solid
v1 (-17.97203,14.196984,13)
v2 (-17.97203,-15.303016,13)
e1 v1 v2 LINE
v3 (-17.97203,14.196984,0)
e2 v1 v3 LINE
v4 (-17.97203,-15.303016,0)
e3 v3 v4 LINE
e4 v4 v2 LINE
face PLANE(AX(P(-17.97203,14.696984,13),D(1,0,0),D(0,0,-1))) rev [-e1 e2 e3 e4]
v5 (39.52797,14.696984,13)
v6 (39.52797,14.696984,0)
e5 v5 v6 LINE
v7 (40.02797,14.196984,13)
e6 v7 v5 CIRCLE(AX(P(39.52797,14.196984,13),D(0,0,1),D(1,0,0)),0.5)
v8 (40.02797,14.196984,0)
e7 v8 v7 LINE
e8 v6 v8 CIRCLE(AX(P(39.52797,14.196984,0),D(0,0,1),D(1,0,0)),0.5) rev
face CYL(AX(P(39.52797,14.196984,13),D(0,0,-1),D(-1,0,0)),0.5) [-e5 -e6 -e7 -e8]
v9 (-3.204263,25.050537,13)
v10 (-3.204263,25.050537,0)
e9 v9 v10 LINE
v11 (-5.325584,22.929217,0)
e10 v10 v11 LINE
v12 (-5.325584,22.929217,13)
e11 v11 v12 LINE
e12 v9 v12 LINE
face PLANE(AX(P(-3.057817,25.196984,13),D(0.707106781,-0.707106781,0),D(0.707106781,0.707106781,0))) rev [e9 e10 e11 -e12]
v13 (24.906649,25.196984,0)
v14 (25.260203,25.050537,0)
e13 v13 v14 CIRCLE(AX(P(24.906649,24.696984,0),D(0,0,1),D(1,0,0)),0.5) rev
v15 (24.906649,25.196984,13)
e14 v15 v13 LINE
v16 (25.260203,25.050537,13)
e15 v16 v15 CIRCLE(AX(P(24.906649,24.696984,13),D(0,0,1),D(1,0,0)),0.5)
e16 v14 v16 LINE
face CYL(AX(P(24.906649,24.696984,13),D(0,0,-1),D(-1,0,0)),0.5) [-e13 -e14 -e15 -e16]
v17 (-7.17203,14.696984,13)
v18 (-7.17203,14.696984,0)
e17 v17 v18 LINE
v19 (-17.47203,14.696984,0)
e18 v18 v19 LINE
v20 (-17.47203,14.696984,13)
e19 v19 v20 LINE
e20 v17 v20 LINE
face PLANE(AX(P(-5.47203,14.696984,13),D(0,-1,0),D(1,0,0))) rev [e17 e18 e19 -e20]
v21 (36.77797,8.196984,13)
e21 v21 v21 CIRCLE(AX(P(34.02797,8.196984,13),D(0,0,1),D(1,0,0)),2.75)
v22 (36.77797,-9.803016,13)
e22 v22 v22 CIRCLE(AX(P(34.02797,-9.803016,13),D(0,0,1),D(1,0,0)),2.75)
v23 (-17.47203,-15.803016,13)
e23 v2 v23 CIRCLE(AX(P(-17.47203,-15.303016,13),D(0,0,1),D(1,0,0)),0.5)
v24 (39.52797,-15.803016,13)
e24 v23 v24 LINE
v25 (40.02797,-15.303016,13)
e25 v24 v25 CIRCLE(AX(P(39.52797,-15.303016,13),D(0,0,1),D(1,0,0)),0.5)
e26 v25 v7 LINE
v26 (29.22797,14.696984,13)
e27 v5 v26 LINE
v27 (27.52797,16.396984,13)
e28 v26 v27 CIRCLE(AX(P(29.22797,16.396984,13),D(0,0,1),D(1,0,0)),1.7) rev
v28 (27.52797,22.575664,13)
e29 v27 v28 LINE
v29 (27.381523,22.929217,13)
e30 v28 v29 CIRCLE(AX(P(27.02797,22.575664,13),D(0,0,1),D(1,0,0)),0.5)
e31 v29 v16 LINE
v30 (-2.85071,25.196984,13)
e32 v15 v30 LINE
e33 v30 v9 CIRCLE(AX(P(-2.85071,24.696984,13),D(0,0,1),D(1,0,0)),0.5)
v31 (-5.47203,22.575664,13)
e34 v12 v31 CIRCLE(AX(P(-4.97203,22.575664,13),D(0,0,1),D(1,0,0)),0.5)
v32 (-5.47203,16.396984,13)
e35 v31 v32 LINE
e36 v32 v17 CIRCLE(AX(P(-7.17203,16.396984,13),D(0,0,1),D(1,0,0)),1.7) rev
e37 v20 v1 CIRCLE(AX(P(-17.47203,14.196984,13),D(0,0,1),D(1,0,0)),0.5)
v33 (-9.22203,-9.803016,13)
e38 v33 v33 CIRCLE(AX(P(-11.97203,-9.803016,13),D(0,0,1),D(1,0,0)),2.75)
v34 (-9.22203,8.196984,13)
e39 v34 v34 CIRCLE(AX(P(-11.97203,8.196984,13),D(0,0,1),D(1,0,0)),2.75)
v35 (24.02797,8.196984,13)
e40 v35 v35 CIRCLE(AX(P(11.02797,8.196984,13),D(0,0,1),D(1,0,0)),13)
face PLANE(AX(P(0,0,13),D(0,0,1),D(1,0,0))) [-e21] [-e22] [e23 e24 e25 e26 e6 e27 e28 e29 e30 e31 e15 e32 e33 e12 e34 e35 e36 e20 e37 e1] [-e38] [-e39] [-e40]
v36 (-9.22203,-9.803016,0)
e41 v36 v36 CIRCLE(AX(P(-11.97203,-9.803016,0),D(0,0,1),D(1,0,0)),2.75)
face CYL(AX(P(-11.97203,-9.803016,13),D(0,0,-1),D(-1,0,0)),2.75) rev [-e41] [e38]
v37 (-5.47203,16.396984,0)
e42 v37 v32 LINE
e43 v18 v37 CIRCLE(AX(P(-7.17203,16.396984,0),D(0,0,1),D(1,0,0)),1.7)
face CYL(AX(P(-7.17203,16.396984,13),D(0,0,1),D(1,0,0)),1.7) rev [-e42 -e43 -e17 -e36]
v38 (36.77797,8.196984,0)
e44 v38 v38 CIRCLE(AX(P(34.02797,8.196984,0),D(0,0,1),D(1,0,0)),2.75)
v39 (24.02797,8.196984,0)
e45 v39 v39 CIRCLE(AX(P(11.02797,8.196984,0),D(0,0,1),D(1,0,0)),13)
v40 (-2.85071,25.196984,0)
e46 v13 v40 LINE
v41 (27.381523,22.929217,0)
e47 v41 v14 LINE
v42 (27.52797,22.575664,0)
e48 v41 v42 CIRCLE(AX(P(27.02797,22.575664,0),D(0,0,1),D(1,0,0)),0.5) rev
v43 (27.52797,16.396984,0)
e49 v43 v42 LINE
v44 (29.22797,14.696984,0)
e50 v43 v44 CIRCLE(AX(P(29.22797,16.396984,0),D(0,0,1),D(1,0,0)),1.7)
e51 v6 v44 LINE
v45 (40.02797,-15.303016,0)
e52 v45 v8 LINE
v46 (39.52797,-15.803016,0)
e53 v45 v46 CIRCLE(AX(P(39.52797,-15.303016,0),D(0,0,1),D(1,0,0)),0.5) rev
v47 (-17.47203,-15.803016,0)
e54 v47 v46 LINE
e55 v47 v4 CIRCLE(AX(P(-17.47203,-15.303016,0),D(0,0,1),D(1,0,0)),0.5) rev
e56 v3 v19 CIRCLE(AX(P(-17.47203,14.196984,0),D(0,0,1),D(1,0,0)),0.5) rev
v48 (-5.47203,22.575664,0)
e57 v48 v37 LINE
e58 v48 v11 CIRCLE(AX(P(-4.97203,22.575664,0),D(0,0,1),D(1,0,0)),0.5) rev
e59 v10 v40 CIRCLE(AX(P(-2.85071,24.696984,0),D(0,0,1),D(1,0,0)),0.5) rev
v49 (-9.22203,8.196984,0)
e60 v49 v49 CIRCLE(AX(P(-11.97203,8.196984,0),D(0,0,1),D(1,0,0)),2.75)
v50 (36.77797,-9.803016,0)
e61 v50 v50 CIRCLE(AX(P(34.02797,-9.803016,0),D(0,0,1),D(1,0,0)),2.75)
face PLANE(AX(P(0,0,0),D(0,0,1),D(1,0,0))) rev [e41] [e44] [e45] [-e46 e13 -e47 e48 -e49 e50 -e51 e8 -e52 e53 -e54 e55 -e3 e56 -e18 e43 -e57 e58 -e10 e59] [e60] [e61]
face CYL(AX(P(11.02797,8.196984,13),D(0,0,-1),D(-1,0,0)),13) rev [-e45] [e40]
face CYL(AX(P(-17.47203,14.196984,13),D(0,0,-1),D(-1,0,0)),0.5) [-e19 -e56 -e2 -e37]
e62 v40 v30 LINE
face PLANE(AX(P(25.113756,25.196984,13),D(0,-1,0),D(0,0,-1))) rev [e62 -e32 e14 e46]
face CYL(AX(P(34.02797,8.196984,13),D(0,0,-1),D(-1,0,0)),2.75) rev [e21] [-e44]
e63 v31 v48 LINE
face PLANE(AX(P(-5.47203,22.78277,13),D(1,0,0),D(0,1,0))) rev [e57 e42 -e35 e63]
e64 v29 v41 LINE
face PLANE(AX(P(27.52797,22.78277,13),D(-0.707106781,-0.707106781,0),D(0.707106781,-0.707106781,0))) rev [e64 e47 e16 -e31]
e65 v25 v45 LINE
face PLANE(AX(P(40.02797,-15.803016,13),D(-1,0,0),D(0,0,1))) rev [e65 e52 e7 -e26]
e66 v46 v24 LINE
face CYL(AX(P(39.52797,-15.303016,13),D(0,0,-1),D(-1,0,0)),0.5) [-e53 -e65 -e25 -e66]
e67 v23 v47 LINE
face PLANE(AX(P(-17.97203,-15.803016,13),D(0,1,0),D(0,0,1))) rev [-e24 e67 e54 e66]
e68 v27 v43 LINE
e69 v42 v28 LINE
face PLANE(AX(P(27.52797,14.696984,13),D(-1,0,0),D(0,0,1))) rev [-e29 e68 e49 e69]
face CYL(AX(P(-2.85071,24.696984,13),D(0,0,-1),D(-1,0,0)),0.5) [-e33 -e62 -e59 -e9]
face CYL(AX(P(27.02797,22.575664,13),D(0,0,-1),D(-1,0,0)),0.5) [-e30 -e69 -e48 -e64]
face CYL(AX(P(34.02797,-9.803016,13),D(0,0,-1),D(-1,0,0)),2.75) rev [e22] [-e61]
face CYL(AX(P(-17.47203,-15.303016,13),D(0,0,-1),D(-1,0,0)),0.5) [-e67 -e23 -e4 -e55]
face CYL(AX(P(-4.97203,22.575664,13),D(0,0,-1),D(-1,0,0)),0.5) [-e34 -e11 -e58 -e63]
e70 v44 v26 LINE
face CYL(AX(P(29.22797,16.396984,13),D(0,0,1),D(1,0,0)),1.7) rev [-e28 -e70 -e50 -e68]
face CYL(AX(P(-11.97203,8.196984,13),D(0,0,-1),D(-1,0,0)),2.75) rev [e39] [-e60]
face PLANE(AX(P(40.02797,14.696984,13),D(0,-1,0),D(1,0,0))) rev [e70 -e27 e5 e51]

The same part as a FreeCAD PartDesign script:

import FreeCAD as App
import Part
import Sketcher

V = App.Vector
Q = App.Units.Quantity


def edges_at(feature, points):
    """Names of the edges that pass closest to the given points."""
    edges = feature.Shape.Edges
    near = lambda p: min(range(len(edges)), key=lambda i: edges[i].distToShape(Part.Vertex(*p))[0])
    return sorted({f"Edge{near(p) + 1}" for p in points})


def add_polygon(sketch, points):
    """Adds a closed chain of lines whose ends are joined by coincident constraints."""
    first, n = sketch.GeometryCount, len(points)
    for a, b in zip(points, points[1:] + points[:1]):
        sketch.addGeometry(Part.LineSegment(App.Vector(*a, 0), App.Vector(*b, 0)), False)
    for i in range(n):
        sketch.addConstraint(Sketcher.Constraint("Coincident", first + i, 2, first + (i + 1) % n, 1))

doc = App.newDocument("Part")
body = doc.addObject("PartDesign::Body", "Body")

# Sketch on XY plane
sketch1 = doc.addObject("Sketcher::SketchObject", "Sketch")
body.addObject(sketch1)
sketch1.AttachmentSupport = (doc.XY_Plane, [""])
sketch1.MapMode = "FlatFace"
add_polygon(sketch1, [(40, 14.7), (27.5, 14.7), (27.5, 22.8), (25.1, 25.2), (-3.1, 25.2), (-5.5, 22.8), (-5.5, 14.7), (-18, 14.7), (-18, -15.8), (40, -15.8)])  # lines 0-9
sketch1.addGeometry(Part.Circle(V(-12, -9.8, 0), V(0, 0, 1), 2.8), False)  # 10
sketch1.addGeometry(Part.Circle(V(34, -9.8, 0), V(0, 0, 1), 2.8), False)  # 11
sketch1.addGeometry(Part.Circle(V(-12, 8.2, 0), V(0, 0, 1), 2.8), False)  # 12
sketch1.addGeometry(Part.Circle(V(11, 8.2, 0), V(0, 0, 1), 13), False)  # 13
sketch1.addGeometry(Part.Circle(V(34, 8.2, 0), V(0, 0, 1), 2.8), False)  # 14
sketch1.addConstraint([
    Sketcher.Constraint("Horizontal", 0),
    Sketcher.Constraint("Vertical", 1),
    Sketcher.Constraint("Horizontal", 3),
    Sketcher.Constraint("Vertical", 5),
    Sketcher.Constraint("Horizontal", 6),
    Sketcher.Constraint("Vertical", 7),
    Sketcher.Constraint("Horizontal", 8),
    Sketcher.Constraint("Vertical", 9),
    Sketcher.Constraint("Equal", 10, 11),
    Sketcher.Constraint("Equal", 11, 12),
    Sketcher.Constraint("Equal", 12, 14),
    Sketcher.Constraint("Perpendicular", 2, 4),
    Sketcher.Constraint("Horizontal", 10, 3, 11, 3),
    Sketcher.Constraint("Horizontal", 12, 3, 13, 3),
    Sketcher.Constraint("Horizontal", 13, 3, 14, 3),
    Sketcher.Constraint("Horizontal", 1, 2, 4, 2),
    Sketcher.Constraint("Horizontal", 0, 2, 5, 2),
    Sketcher.Constraint("Vertical", 10, 3, 12, 3),
    Sketcher.Constraint("Vertical", 11, 3, 14, 3),
    Sketcher.Constraint("Equal", 0, 6),
    Sketcher.Constraint("Equal", 2, 4),
    Sketcher.Constraint("Diameter", 13, Q("26 mm")),
    Sketcher.Constraint("Diameter", 10, Q("5.5 mm")),
    Sketcher.Constraint("DistanceX", 8, 1, 8, 2, Q("58 mm")),
    Sketcher.Constraint("DistanceX", 0, 2, 0, 1, Q("12.5 mm")),
    Sketcher.Constraint("DistanceY", 7, 2, 7, 1, Q("30.5 mm")),
    Sketcher.Constraint("DistanceX", 10, 3, 11, 3, Q("46 mm")),
    Sketcher.Constraint("DistanceY", 10, 3, 12, 3, Q("18 mm")),
    Sketcher.Constraint("DistanceX", 12, 3, 13, 3, Q("23 mm")),
    Sketcher.Constraint("DistanceY", 14, 3, 2, 2, Q("17 mm")),
    Sketcher.Constraint("DistanceX", 6, 2, 12, 3, Q("6 mm")),
    Sketcher.Constraint("DistanceY", 7, 2, 10, 3, Q("6 mm")),
    Sketcher.Constraint("DistanceX", 3, 2, 3, 1, Q("28.171573 mm")),
    Sketcher.Constraint("DistanceX", 10, 3, -1, 1, Q("11.97203 mm")),
    Sketcher.Constraint("DistanceY", -1, 1, 1, 2, Q("22.78277 mm")),
])
pad1 = doc.addObject("PartDesign::Pad", "Pad")
body.addObject(pad1)
pad1.Profile = sketch1
pad1.Length = 13
doc.recompute()

fillet = doc.addObject("PartDesign::Fillet", "Fillet")
body.addObject(fillet)
fillet.Base = (pad1, edges_at(pad1, [(-5.472, 14.697, 6.5), (27.528, 14.697, 6.5)]))
fillet.Radius = 1.7
doc.recompute()

fillet2 = doc.addObject("PartDesign::Fillet", "Fillet001")
body.addObject(fillet2)
fillet2.Base = (fillet, edges_at(fillet, [
    (40.028, -15.803, 6.5),
    (-17.972, -15.803, 6.5),
    (-17.972, 14.697, 6.5),
    (-5.472, 22.783, 6.5),
    (-3.058, 25.197, 6.5),
    (25.114, 25.197, 6.5),
    (27.528, 22.783, 6.5),
    (40.028, 14.697, 6.5),
]))
fillet2.Radius = 0.5

doc.recompute()
